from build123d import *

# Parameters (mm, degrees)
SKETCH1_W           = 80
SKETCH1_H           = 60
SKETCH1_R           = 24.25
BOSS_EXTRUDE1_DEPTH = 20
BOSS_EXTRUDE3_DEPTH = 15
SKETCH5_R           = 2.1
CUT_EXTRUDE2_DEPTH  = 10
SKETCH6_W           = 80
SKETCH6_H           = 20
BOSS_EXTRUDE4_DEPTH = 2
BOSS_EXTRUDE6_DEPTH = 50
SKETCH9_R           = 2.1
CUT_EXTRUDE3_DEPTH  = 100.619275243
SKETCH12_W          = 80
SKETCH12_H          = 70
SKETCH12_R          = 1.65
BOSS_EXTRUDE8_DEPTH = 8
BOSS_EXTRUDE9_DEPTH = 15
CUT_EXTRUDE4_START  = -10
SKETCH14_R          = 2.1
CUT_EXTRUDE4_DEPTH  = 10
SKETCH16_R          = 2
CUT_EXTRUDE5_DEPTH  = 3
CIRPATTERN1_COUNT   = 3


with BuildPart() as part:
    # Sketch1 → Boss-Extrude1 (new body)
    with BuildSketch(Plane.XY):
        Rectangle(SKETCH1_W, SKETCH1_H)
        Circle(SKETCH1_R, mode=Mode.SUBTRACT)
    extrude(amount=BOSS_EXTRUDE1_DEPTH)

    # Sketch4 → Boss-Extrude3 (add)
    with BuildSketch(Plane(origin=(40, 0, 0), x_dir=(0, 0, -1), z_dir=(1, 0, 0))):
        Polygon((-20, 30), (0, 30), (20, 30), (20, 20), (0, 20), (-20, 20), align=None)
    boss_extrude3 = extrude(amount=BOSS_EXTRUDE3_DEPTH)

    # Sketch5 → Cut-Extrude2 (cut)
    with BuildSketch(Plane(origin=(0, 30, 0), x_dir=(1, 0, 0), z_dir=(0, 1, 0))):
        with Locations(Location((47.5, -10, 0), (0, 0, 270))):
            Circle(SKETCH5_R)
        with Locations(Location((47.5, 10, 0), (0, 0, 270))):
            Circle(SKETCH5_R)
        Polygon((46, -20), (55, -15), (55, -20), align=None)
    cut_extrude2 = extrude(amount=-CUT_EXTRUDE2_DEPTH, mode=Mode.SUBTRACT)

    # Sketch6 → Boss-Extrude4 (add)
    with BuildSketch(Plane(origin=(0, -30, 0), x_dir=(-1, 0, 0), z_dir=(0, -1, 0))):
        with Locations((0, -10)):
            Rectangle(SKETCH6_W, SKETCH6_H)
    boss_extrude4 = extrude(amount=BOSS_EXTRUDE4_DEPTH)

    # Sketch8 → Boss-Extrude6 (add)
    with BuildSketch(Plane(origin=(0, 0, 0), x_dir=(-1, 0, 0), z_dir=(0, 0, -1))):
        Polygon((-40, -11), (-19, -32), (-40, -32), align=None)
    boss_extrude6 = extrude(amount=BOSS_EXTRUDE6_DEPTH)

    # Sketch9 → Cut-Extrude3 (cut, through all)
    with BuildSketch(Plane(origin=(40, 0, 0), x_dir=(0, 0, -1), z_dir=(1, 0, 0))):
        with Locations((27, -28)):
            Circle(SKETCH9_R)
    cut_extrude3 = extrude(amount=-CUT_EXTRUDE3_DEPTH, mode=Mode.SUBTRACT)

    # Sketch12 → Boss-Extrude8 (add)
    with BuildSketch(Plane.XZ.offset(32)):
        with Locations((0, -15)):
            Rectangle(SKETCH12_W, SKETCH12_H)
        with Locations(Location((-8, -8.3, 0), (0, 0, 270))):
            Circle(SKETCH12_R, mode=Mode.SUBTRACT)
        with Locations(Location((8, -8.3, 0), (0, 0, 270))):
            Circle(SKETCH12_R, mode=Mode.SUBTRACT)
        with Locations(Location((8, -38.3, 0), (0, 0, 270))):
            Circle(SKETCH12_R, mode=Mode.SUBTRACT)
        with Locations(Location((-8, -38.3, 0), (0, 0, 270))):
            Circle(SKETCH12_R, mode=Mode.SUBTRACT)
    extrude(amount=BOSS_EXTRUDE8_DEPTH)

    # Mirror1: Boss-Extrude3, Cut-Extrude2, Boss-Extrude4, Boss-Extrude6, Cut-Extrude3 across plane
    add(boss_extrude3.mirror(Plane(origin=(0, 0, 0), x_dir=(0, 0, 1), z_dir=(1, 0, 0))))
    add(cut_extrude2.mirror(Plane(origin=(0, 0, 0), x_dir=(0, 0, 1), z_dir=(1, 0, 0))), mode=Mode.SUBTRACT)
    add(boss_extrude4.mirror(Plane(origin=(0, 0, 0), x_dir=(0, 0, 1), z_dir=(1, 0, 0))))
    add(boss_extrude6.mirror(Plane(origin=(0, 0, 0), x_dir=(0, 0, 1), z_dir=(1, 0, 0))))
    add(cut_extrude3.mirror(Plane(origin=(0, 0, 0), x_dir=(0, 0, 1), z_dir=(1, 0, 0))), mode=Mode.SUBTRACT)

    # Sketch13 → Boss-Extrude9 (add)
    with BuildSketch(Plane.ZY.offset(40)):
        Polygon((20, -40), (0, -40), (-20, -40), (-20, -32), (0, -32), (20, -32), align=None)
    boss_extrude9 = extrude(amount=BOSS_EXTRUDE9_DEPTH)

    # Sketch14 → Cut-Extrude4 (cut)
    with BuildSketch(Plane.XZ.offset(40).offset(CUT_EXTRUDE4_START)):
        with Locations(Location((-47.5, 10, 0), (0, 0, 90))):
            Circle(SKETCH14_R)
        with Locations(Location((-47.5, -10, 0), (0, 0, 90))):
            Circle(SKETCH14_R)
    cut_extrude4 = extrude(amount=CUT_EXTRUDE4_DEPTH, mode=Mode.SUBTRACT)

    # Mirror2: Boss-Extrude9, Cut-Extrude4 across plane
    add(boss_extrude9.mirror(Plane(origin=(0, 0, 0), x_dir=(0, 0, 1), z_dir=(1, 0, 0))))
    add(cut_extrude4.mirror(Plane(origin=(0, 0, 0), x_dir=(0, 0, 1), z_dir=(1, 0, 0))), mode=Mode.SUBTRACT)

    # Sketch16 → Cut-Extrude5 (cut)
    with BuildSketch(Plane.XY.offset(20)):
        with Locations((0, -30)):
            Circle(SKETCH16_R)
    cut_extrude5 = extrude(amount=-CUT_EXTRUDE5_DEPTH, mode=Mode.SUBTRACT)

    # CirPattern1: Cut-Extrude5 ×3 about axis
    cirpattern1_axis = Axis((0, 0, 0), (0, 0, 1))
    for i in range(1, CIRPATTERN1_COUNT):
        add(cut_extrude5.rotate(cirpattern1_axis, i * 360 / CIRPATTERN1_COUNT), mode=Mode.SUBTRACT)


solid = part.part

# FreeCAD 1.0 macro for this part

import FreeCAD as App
import Part
import Sketcher

doc = App.newDocument("Part")
body = doc.addObject("PartDesign::Body", "Body")

# Sketch on XY plane
sketch1 = body.newObject("Sketcher::SketchObject", "Sketch")
sketch1.AttachmentSupport = (doc.getObject("XY_Plane"), [""])
sketch1.MapMode = "FlatFace"
sketch1.addGeometry(Part.LineSegment(App.Vector(-40, 30, 0), App.Vector(-40, -30, 0)), False)
sketch1.addGeometry(Part.LineSegment(App.Vector(-40, -30, 0), App.Vector(40, -30, 0)), False)
sketch1.addGeometry(Part.LineSegment(App.Vector(40, -30, 0), App.Vector(40, 30, 0)), False)
sketch1.addGeometry(Part.LineSegment(App.Vector(40, 30, 0), App.Vector(-40, 30, 0)), False)
sketch1.addGeometry(Part.Circle(App.Vector(0, 0, 0), App.Vector(0, 0, 1), 24), False)
sketch1.addConstraint(Sketcher.Constraint("Coincident", 0, 2, 1, 1))
sketch1.addConstraint(Sketcher.Constraint("Coincident", 1, 2, 2, 1))
sketch1.addConstraint(Sketcher.Constraint("Coincident", 2, 2, 3, 1))
sketch1.addConstraint(Sketcher.Constraint("Coincident", 3, 2, 0, 1))
sketch1.addConstraint(Sketcher.Constraint("Vertical", 0))
sketch1.addConstraint(Sketcher.Constraint("Horizontal", 1))
sketch1.addConstraint(Sketcher.Constraint("Vertical", 2))
sketch1.addConstraint(Sketcher.Constraint("Horizontal", 3))
sketch1.addConstraint(Sketcher.Constraint("Coincident", 4, 3, -1, 1))
sketch1.addConstraint(Sketcher.Constraint("Symmetric", 0, 2, 2, 2, -1, 1))
sketch1.addConstraint(Sketcher.Constraint("Diameter", 4, 48.5))
sketch1.addConstraint(Sketcher.Constraint("DistanceX", 1, 1, 1, 2, 80.0))
sketch1.addConstraint(Sketcher.Constraint("DistanceY", 0, 2, 0, 1, 60.0))
pad1 = body.newObject("PartDesign::Pad", "Pad")
pad1.Profile = sketch1
pad1.Length = 20

# Sketch on YZ plane
sketch2 = body.newObject("Sketcher::SketchObject", "Sketch001")
sketch2.AttachmentSupport = (doc.getObject("YZ_Plane"), [""])
sketch2.MapMode = "FlatFace"
sketch2.AttachmentOffset = App.Placement(App.Vector(0, 0, 40), App.Rotation())
sketch2.addGeometry(Part.LineSegment(App.Vector(30, -20, 0), App.Vector(30, 20, 0)), False)
sketch2.addGeometry(Part.LineSegment(App.Vector(30, 20, 0), App.Vector(20, 20, 0)), False)
sketch2.addGeometry(Part.LineSegment(App.Vector(20, 20, 0), App.Vector(20, -20, 0)), False)
sketch2.addGeometry(Part.LineSegment(App.Vector(20, -20, 0), App.Vector(30, -20, 0)), False)
sketch2.addConstraint(Sketcher.Constraint("Coincident", 0, 2, 1, 1))
sketch2.addConstraint(Sketcher.Constraint("Coincident", 1, 2, 2, 1))
sketch2.addConstraint(Sketcher.Constraint("Coincident", 2, 2, 3, 1))
sketch2.addConstraint(Sketcher.Constraint("Coincident", 3, 2, 0, 1))
sketch2.addConstraint(Sketcher.Constraint("Vertical", 0))
sketch2.addConstraint(Sketcher.Constraint("Horizontal", 1))
sketch2.addConstraint(Sketcher.Constraint("Vertical", 2))
sketch2.addConstraint(Sketcher.Constraint("Horizontal", 3))
sketch2.addConstraint(Sketcher.Constraint("DistanceX", 1, 2, 1, 1, 10.0))
sketch2.addConstraint(Sketcher.Constraint("DistanceY", 0, 1, 0, 2, 40.0))
sketch2.addConstraint(Sketcher.Constraint("DistanceX", -1, 1, 0, 2, 30.0))
sketch2.addConstraint(Sketcher.Constraint("DistanceY", -1, 1, 0, 2, 20.0))
pad2 = body.newObject("PartDesign::Pad", "Pad001")
pad2.Profile = sketch2
pad2.Length = 15

# Sketch on XZ plane
sketch3 = body.newObject("Sketcher::SketchObject", "Sketch002")
sketch3.AttachmentSupport = (doc.getObject("XZ_Plane"), [""])
sketch3.MapMode = "FlatFace"
sketch3.AttachmentOffset = App.Placement(App.Vector(0, 0, -30), App.Rotation())
sketch3.addGeometry(Part.Circle(App.Vector(47.5, 10, 0), App.Vector(0, 0, 1), 2.1), False)
sketch3.addGeometry(Part.Circle(App.Vector(47.5, -10, 0), App.Vector(0, 0, 1), 2.1), False)
sketch3.addGeometry(Part.LineSegment(App.Vector(55, 15, 0), App.Vector(46, 20, 0)), False)
sketch3.addGeometry(Part.LineSegment(App.Vector(46, 20, 0), App.Vector(55, 20, 0)), False)
sketch3.addGeometry(Part.LineSegment(App.Vector(55, 20, 0), App.Vector(55, 15, 0)), False)
sketch3.addConstraint(Sketcher.Constraint("Coincident", 2, 2, 3, 1))
sketch3.addConstraint(Sketcher.Constraint("Coincident", 3, 2, 4, 1))
sketch3.addConstraint(Sketcher.Constraint("Coincident", 4, 2, 2, 1))
sketch3.addConstraint(Sketcher.Constraint("Horizontal", 3))
sketch3.addConstraint(Sketcher.Constraint("Vertical", 4))
sketch3.addConstraint(Sketcher.Constraint("Equal", 0, 1))
sketch3.addConstraint(Sketcher.Constraint("Symmetric", 0, 3, 1, 3, -1))
sketch3.addConstraint(Sketcher.Constraint("Diameter", 0, 4.2))
sketch3.addConstraint(Sketcher.Constraint("DistanceX", 3, 1, 3, 2, 9.0))
sketch3.addConstraint(Sketcher.Constraint("DistanceY", 4, 2, 4, 1, 5.0))
sketch3.addConstraint(Sketcher.Constraint("DistanceY", -1, 1, 0, 3, 10.0))
sketch3.addConstraint(Sketcher.Constraint("DistanceX", -1, 1, 2, 2, 46.0))
sketch3.addConstraint(Sketcher.Constraint("DistanceY", -1, 1, 2, 2, 20.0))
sketch3.addConstraint(Sketcher.Constraint("DistanceX", -1, 1, 0, 3, 47.5))
pocket1 = body.newObject("PartDesign::Pocket", "Pocket")
pocket1.Profile = sketch3
pocket1.Length = 10
pocket1.Reversed = True

# Sketch on XZ plane
sketch4 = body.newObject("Sketcher::SketchObject", "Sketch003")
sketch4.AttachmentSupport = (doc.getObject("XZ_Plane"), [""])
sketch4.MapMode = "FlatFace"
sketch4.AttachmentOffset = App.Placement(App.Vector(0, 0, 30), App.Rotation())
sketch4.addGeometry(Part.LineSegment(App.Vector(40, 0, 0), App.Vector(40, 20, 0)), False)
sketch4.addGeometry(Part.LineSegment(App.Vector(40, 20, 0), App.Vector(-40, 20, 0)), False)
sketch4.addGeometry(Part.LineSegment(App.Vector(-40, 20, 0), App.Vector(-40, 0, 0)), False)
sketch4.addGeometry(Part.LineSegment(App.Vector(-40, 0, 0), App.Vector(40, 0, 0)), False)
sketch4.addConstraint(Sketcher.Constraint("Coincident", 0, 2, 1, 1))
sketch4.addConstraint(Sketcher.Constraint("Coincident", 1, 2, 2, 1))
sketch4.addConstraint(Sketcher.Constraint("Coincident", 2, 2, 3, 1))
sketch4.addConstraint(Sketcher.Constraint("Coincident", 3, 2, 0, 1))
sketch4.addConstraint(Sketcher.Constraint("Vertical", 0))
sketch4.addConstraint(Sketcher.Constraint("Horizontal", 1))
sketch4.addConstraint(Sketcher.Constraint("Vertical", 2))
sketch4.addConstraint(Sketcher.Constraint("Horizontal", 3))
sketch4.addConstraint(Sketcher.Constraint("Symmetric", 2, 2, 3, 2, -1, 1))
sketch4.addConstraint(Sketcher.Constraint("DistanceX", 1, 2, 1, 1, 80.0))
sketch4.addConstraint(Sketcher.Constraint("DistanceY", 0, 1, 0, 2, 20.0))
pad3 = body.newObject("PartDesign::Pad", "Pad002")
pad3.Profile = sketch4
pad3.Length = 2

# Sketch on XY plane
sketch5 = body.newObject("Sketcher::SketchObject", "Sketch004")
sketch5.AttachmentSupport = (doc.getObject("XY_Plane"), [""])
sketch5.MapMode = "FlatFace"
sketch5.addGeometry(Part.LineSegment(App.Vector(19, -32, 0), App.Vector(40, -11, 0)), False)
sketch5.addGeometry(Part.LineSegment(App.Vector(40, -11, 0), App.Vector(40, -32, 0)), False)
sketch5.addGeometry(Part.LineSegment(App.Vector(40, -32, 0), App.Vector(19, -32, 0)), False)
sketch5.addConstraint(Sketcher.Constraint("Coincident", 0, 2, 1, 1))
sketch5.addConstraint(Sketcher.Constraint("Coincident", 1, 2, 2, 1))
sketch5.addConstraint(Sketcher.Constraint("Coincident", 2, 2, 0, 1))
sketch5.addConstraint(Sketcher.Constraint("Vertical", 1))
sketch5.addConstraint(Sketcher.Constraint("Horizontal", 2))
sketch5.addConstraint(Sketcher.Constraint("Equal", 2, 1))
sketch5.addConstraint(Sketcher.Constraint("DistanceX", 2, 2, 2, 1, 21.0))
sketch5.addConstraint(Sketcher.Constraint("DistanceX", -1, 1, 0, 2, 40.0))
sketch5.addConstraint(Sketcher.Constraint("DistanceY", 0, 2, -1, 1, 11.0))
pad4 = body.newObject("PartDesign::Pad", "Pad003")
pad4.Profile = sketch5
pad4.Length = 50
pad4.Reversed = True

# Sketch on YZ plane
sketch6 = body.newObject("Sketcher::SketchObject", "Sketch005")
sketch6.AttachmentSupport = (doc.getObject("YZ_Plane"), [""])
sketch6.MapMode = "FlatFace"
sketch6.AttachmentOffset = App.Placement(App.Vector(0, 0, 40), App.Rotation())
sketch6.addGeometry(Part.Circle(App.Vector(-28, -27, 0), App.Vector(0, 0, 1), 2.1), False)
sketch6.addConstraint(Sketcher.Constraint("Diameter", 0, 4.2))
sketch6.addConstraint(Sketcher.Constraint("DistanceX", 0, 3, -1, 1, 28.0))
sketch6.addConstraint(Sketcher.Constraint("DistanceY", 0, 3, -1, 1, 27.0))
pocket2 = body.newObject("PartDesign::Pocket", "Pocket001")
pocket2.Profile = sketch6
pocket2.Type = "ThroughAll"

# Sketch on XZ plane
sketch7 = body.newObject("Sketcher::SketchObject", "Sketch006")
sketch7.AttachmentSupport = (doc.getObject("XZ_Plane"), [""])
sketch7.MapMode = "FlatFace"
sketch7.AttachmentOffset = App.Placement(App.Vector(0, 0, 32), App.Rotation())
sketch7.addGeometry(Part.LineSegment(App.Vector(-40, 20, 0), App.Vector(-40, -50, 0)), False)
sketch7.addGeometry(Part.LineSegment(App.Vector(-40, -50, 0), App.Vector(40, -50, 0)), False)
sketch7.addGeometry(Part.LineSegment(App.Vector(40, -50, 0), App.Vector(40, 20, 0)), False)
sketch7.addGeometry(Part.LineSegment(App.Vector(40, 20, 0), App.Vector(-40, 20, 0)), False)
sketch7.addGeometry(Part.Circle(App.Vector(-8, -38.3, 0), App.Vector(0, 0, 1), 1.6), False)
sketch7.addGeometry(Part.Circle(App.Vector(8, -38.3, 0), App.Vector(0, 0, 1), 1.6), False)
sketch7.addGeometry(Part.Circle(App.Vector(-8, -8.3, 0), App.Vector(0, 0, 1), 1.6), False)
sketch7.addGeometry(Part.Circle(App.Vector(8, -8.3, 0), App.Vector(0, 0, 1), 1.6), False)
sketch7.addConstraint(Sketcher.Constraint("Coincident", 0, 2, 1, 1))
sketch7.addConstraint(Sketcher.Constraint("Coincident", 1, 2, 2, 1))
sketch7.addConstraint(Sketcher.Constraint("Coincident", 2, 2, 3, 1))
sketch7.addConstraint(Sketcher.Constraint("Coincident", 3, 2, 0, 1))
sketch7.addConstraint(Sketcher.Constraint("Vertical", 0))
sketch7.addConstraint(Sketcher.Constraint("Horizontal", 1))
sketch7.addConstraint(Sketcher.Constraint("Vertical", 2))
sketch7.addConstraint(Sketcher.Constraint("Horizontal", 3))
sketch7.addConstraint(Sketcher.Constraint("Equal", 4, 5))
sketch7.addConstraint(Sketcher.Constraint("Equal", 5, 6))
sketch7.addConstraint(Sketcher.Constraint("Equal", 6, 7))
sketch7.addConstraint(Sketcher.Constraint("Symmetric", 4, 3, 5, 3, -2))
sketch7.addConstraint(Sketcher.Constraint("Symmetric", 6, 3, 7, 3, -2))
sketch7.addConstraint(Sketcher.Constraint("Vertical", 4, 3, 6, 3))
sketch7.addConstraint(Sketcher.Constraint("Diameter", 4, 3.3))
sketch7.addConstraint(Sketcher.Constraint("DistanceX", 1, 1, 1, 2, 80.0))
sketch7.addConstraint(Sketcher.Constraint("DistanceY", 0, 2, 0, 1, 70.0))
sketch7.addConstraint(Sketcher.Constraint("DistanceX", 4, 3, -1, 1, 8.0))
sketch7.addConstraint(Sketcher.Constraint("DistanceX", 0, 2, -1, 1, 40.0))
sketch7.addConstraint(Sketcher.Constraint("DistanceY", 0, 2, -1, 1, 50.0))
sketch7.addConstraint(Sketcher.Constraint("DistanceY", 4, 3, 6, 3, 30.0))
sketch7.addConstraint(Sketcher.Constraint("DistanceY", 4, 3, -1, 1, 38.3))
pad5 = body.newObject("PartDesign::Pad", "Pad004")
pad5.Profile = sketch7
pad5.Length = 8
doc.recompute()

mirrored = body.newObject("PartDesign::Mirrored", "Mirrored")
mirrored.Originals = [pad2, pocket1, pad3, pad4, pocket2]
mirrored.MirrorPlane = (doc.getObject("YZ_Plane"), [""])
body.Tip = mirrored

# Sketch on YZ plane
sketch8 = body.newObject("Sketcher::SketchObject", "Sketch007")
sketch8.AttachmentSupport = (doc.getObject("YZ_Plane"), [""])
sketch8.MapMode = "FlatFace"
sketch8.AttachmentOffset = App.Placement(App.Vector(0, 0, -40), App.Rotation())
sketch8.addGeometry(Part.LineSegment(App.Vector(-40, -20, 0), App.Vector(-40, 20, 0)), False)
sketch8.addGeometry(Part.LineSegment(App.Vector(-40, 20, 0), App.Vector(-32, 20, 0)), False)
sketch8.addGeometry(Part.LineSegment(App.Vector(-32, 20, 0), App.Vector(-32, -20, 0)), False)
sketch8.addGeometry(Part.LineSegment(App.Vector(-32, -20, 0), App.Vector(-40, -20, 0)), False)
sketch8.addConstraint(Sketcher.Constraint("Coincident", 0, 2, 1, 1))
sketch8.addConstraint(Sketcher.Constraint("Coincident", 1, 2, 2, 1))
sketch8.addConstraint(Sketcher.Constraint("Coincident", 2, 2, 3, 1))
sketch8.addConstraint(Sketcher.Constraint("Coincident", 3, 2, 0, 1))
sketch8.addConstraint(Sketcher.Constraint("Vertical", 0))
sketch8.addConstraint(Sketcher.Constraint("Horizontal", 1))
sketch8.addConstraint(Sketcher.Constraint("Vertical", 2))
sketch8.addConstraint(Sketcher.Constraint("Horizontal", 3))
sketch8.addConstraint(Sketcher.Constraint("DistanceX", 1, 1, 1, 2, 8.0))
sketch8.addConstraint(Sketcher.Constraint("DistanceY", 0, 1, 0, 2, 40.0))
sketch8.addConstraint(Sketcher.Constraint("DistanceX", 0, 2, -1, 1, 40.0))
sketch8.addConstraint(Sketcher.Constraint("DistanceY", -1, 1, 0, 2, 20.0))
pad6 = body.newObject("PartDesign::Pad", "Pad005")
pad6.Profile = sketch8
pad6.Length = 15
pad6.Reversed = True

# Sketch on XZ plane
sketch9 = body.newObject("Sketcher::SketchObject", "Sketch008")
sketch9.AttachmentSupport = (doc.getObject("XZ_Plane"), [""])
sketch9.MapMode = "FlatFace"
sketch9.AttachmentOffset = App.Placement(App.Vector(0, 0, 30), App.Rotation())
sketch9.addGeometry(Part.Circle(App.Vector(-47.5, 10, 0), App.Vector(0, 0, 1), 2.1), False)
sketch9.addGeometry(Part.Circle(App.Vector(-47.5, -10, 0), App.Vector(0, 0, 1), 2.1), False)
sketch9.addConstraint(Sketcher.Constraint("Equal", 0, 1))
sketch9.addConstraint(Sketcher.Constraint("Symmetric", 0, 3, 1, 3, -1))
sketch9.addConstraint(Sketcher.Constraint("Diameter", 0, 4.2))
sketch9.addConstraint(Sketcher.Constraint("DistanceY", -1, 1, 0, 3, 10.0))
sketch9.addConstraint(Sketcher.Constraint("DistanceX", 0, 3, -1, 1, 47.5))
pocket3 = body.newObject("PartDesign::Pocket", "Pocket002")
pocket3.Profile = sketch9
pocket3.Length = 10
pocket3.Reversed = True
doc.recompute()

mirrored2 = body.newObject("PartDesign::Mirrored", "Mirrored001")
mirrored2.Originals = [pad6, pocket3]
mirrored2.MirrorPlane = (doc.getObject("YZ_Plane"), [""])
body.Tip = mirrored2

# Sketch on XY plane
sketch10 = body.newObject("Sketcher::SketchObject", "Sketch009")
sketch10.AttachmentSupport = (doc.getObject("XY_Plane"), [""])
sketch10.MapMode = "FlatFace"
sketch10.AttachmentOffset = App.Placement(App.Vector(0, 0, 20), App.Rotation())
sketch10.addGeometry(Part.Circle(App.Vector(0, -30, 0), App.Vector(0, 0, 1), 2), False)
sketch10.addConstraint(Sketcher.Constraint("PointOnObject", 0, 3, -2))
sketch10.addConstraint(Sketcher.Constraint("Diameter", 0, 4.0))
sketch10.addConstraint(Sketcher.Constraint("DistanceY", 0, 3, -1, 1, 30.0))
pocket4 = body.newObject("PartDesign::Pocket", "Pocket003")
pocket4.Profile = sketch10
pocket4.Length = 3
doc.recompute()

polarpattern = body.newObject("PartDesign::PolarPattern", "PolarPattern")
polarpattern.Originals = [pocket4]
polarpattern.Axis = (doc.getObject("Z_Axis"), [""])
polarpattern.Angle = 360
polarpattern.Occurrences = 3
body.Tip = polarpattern

doc.recompute()
